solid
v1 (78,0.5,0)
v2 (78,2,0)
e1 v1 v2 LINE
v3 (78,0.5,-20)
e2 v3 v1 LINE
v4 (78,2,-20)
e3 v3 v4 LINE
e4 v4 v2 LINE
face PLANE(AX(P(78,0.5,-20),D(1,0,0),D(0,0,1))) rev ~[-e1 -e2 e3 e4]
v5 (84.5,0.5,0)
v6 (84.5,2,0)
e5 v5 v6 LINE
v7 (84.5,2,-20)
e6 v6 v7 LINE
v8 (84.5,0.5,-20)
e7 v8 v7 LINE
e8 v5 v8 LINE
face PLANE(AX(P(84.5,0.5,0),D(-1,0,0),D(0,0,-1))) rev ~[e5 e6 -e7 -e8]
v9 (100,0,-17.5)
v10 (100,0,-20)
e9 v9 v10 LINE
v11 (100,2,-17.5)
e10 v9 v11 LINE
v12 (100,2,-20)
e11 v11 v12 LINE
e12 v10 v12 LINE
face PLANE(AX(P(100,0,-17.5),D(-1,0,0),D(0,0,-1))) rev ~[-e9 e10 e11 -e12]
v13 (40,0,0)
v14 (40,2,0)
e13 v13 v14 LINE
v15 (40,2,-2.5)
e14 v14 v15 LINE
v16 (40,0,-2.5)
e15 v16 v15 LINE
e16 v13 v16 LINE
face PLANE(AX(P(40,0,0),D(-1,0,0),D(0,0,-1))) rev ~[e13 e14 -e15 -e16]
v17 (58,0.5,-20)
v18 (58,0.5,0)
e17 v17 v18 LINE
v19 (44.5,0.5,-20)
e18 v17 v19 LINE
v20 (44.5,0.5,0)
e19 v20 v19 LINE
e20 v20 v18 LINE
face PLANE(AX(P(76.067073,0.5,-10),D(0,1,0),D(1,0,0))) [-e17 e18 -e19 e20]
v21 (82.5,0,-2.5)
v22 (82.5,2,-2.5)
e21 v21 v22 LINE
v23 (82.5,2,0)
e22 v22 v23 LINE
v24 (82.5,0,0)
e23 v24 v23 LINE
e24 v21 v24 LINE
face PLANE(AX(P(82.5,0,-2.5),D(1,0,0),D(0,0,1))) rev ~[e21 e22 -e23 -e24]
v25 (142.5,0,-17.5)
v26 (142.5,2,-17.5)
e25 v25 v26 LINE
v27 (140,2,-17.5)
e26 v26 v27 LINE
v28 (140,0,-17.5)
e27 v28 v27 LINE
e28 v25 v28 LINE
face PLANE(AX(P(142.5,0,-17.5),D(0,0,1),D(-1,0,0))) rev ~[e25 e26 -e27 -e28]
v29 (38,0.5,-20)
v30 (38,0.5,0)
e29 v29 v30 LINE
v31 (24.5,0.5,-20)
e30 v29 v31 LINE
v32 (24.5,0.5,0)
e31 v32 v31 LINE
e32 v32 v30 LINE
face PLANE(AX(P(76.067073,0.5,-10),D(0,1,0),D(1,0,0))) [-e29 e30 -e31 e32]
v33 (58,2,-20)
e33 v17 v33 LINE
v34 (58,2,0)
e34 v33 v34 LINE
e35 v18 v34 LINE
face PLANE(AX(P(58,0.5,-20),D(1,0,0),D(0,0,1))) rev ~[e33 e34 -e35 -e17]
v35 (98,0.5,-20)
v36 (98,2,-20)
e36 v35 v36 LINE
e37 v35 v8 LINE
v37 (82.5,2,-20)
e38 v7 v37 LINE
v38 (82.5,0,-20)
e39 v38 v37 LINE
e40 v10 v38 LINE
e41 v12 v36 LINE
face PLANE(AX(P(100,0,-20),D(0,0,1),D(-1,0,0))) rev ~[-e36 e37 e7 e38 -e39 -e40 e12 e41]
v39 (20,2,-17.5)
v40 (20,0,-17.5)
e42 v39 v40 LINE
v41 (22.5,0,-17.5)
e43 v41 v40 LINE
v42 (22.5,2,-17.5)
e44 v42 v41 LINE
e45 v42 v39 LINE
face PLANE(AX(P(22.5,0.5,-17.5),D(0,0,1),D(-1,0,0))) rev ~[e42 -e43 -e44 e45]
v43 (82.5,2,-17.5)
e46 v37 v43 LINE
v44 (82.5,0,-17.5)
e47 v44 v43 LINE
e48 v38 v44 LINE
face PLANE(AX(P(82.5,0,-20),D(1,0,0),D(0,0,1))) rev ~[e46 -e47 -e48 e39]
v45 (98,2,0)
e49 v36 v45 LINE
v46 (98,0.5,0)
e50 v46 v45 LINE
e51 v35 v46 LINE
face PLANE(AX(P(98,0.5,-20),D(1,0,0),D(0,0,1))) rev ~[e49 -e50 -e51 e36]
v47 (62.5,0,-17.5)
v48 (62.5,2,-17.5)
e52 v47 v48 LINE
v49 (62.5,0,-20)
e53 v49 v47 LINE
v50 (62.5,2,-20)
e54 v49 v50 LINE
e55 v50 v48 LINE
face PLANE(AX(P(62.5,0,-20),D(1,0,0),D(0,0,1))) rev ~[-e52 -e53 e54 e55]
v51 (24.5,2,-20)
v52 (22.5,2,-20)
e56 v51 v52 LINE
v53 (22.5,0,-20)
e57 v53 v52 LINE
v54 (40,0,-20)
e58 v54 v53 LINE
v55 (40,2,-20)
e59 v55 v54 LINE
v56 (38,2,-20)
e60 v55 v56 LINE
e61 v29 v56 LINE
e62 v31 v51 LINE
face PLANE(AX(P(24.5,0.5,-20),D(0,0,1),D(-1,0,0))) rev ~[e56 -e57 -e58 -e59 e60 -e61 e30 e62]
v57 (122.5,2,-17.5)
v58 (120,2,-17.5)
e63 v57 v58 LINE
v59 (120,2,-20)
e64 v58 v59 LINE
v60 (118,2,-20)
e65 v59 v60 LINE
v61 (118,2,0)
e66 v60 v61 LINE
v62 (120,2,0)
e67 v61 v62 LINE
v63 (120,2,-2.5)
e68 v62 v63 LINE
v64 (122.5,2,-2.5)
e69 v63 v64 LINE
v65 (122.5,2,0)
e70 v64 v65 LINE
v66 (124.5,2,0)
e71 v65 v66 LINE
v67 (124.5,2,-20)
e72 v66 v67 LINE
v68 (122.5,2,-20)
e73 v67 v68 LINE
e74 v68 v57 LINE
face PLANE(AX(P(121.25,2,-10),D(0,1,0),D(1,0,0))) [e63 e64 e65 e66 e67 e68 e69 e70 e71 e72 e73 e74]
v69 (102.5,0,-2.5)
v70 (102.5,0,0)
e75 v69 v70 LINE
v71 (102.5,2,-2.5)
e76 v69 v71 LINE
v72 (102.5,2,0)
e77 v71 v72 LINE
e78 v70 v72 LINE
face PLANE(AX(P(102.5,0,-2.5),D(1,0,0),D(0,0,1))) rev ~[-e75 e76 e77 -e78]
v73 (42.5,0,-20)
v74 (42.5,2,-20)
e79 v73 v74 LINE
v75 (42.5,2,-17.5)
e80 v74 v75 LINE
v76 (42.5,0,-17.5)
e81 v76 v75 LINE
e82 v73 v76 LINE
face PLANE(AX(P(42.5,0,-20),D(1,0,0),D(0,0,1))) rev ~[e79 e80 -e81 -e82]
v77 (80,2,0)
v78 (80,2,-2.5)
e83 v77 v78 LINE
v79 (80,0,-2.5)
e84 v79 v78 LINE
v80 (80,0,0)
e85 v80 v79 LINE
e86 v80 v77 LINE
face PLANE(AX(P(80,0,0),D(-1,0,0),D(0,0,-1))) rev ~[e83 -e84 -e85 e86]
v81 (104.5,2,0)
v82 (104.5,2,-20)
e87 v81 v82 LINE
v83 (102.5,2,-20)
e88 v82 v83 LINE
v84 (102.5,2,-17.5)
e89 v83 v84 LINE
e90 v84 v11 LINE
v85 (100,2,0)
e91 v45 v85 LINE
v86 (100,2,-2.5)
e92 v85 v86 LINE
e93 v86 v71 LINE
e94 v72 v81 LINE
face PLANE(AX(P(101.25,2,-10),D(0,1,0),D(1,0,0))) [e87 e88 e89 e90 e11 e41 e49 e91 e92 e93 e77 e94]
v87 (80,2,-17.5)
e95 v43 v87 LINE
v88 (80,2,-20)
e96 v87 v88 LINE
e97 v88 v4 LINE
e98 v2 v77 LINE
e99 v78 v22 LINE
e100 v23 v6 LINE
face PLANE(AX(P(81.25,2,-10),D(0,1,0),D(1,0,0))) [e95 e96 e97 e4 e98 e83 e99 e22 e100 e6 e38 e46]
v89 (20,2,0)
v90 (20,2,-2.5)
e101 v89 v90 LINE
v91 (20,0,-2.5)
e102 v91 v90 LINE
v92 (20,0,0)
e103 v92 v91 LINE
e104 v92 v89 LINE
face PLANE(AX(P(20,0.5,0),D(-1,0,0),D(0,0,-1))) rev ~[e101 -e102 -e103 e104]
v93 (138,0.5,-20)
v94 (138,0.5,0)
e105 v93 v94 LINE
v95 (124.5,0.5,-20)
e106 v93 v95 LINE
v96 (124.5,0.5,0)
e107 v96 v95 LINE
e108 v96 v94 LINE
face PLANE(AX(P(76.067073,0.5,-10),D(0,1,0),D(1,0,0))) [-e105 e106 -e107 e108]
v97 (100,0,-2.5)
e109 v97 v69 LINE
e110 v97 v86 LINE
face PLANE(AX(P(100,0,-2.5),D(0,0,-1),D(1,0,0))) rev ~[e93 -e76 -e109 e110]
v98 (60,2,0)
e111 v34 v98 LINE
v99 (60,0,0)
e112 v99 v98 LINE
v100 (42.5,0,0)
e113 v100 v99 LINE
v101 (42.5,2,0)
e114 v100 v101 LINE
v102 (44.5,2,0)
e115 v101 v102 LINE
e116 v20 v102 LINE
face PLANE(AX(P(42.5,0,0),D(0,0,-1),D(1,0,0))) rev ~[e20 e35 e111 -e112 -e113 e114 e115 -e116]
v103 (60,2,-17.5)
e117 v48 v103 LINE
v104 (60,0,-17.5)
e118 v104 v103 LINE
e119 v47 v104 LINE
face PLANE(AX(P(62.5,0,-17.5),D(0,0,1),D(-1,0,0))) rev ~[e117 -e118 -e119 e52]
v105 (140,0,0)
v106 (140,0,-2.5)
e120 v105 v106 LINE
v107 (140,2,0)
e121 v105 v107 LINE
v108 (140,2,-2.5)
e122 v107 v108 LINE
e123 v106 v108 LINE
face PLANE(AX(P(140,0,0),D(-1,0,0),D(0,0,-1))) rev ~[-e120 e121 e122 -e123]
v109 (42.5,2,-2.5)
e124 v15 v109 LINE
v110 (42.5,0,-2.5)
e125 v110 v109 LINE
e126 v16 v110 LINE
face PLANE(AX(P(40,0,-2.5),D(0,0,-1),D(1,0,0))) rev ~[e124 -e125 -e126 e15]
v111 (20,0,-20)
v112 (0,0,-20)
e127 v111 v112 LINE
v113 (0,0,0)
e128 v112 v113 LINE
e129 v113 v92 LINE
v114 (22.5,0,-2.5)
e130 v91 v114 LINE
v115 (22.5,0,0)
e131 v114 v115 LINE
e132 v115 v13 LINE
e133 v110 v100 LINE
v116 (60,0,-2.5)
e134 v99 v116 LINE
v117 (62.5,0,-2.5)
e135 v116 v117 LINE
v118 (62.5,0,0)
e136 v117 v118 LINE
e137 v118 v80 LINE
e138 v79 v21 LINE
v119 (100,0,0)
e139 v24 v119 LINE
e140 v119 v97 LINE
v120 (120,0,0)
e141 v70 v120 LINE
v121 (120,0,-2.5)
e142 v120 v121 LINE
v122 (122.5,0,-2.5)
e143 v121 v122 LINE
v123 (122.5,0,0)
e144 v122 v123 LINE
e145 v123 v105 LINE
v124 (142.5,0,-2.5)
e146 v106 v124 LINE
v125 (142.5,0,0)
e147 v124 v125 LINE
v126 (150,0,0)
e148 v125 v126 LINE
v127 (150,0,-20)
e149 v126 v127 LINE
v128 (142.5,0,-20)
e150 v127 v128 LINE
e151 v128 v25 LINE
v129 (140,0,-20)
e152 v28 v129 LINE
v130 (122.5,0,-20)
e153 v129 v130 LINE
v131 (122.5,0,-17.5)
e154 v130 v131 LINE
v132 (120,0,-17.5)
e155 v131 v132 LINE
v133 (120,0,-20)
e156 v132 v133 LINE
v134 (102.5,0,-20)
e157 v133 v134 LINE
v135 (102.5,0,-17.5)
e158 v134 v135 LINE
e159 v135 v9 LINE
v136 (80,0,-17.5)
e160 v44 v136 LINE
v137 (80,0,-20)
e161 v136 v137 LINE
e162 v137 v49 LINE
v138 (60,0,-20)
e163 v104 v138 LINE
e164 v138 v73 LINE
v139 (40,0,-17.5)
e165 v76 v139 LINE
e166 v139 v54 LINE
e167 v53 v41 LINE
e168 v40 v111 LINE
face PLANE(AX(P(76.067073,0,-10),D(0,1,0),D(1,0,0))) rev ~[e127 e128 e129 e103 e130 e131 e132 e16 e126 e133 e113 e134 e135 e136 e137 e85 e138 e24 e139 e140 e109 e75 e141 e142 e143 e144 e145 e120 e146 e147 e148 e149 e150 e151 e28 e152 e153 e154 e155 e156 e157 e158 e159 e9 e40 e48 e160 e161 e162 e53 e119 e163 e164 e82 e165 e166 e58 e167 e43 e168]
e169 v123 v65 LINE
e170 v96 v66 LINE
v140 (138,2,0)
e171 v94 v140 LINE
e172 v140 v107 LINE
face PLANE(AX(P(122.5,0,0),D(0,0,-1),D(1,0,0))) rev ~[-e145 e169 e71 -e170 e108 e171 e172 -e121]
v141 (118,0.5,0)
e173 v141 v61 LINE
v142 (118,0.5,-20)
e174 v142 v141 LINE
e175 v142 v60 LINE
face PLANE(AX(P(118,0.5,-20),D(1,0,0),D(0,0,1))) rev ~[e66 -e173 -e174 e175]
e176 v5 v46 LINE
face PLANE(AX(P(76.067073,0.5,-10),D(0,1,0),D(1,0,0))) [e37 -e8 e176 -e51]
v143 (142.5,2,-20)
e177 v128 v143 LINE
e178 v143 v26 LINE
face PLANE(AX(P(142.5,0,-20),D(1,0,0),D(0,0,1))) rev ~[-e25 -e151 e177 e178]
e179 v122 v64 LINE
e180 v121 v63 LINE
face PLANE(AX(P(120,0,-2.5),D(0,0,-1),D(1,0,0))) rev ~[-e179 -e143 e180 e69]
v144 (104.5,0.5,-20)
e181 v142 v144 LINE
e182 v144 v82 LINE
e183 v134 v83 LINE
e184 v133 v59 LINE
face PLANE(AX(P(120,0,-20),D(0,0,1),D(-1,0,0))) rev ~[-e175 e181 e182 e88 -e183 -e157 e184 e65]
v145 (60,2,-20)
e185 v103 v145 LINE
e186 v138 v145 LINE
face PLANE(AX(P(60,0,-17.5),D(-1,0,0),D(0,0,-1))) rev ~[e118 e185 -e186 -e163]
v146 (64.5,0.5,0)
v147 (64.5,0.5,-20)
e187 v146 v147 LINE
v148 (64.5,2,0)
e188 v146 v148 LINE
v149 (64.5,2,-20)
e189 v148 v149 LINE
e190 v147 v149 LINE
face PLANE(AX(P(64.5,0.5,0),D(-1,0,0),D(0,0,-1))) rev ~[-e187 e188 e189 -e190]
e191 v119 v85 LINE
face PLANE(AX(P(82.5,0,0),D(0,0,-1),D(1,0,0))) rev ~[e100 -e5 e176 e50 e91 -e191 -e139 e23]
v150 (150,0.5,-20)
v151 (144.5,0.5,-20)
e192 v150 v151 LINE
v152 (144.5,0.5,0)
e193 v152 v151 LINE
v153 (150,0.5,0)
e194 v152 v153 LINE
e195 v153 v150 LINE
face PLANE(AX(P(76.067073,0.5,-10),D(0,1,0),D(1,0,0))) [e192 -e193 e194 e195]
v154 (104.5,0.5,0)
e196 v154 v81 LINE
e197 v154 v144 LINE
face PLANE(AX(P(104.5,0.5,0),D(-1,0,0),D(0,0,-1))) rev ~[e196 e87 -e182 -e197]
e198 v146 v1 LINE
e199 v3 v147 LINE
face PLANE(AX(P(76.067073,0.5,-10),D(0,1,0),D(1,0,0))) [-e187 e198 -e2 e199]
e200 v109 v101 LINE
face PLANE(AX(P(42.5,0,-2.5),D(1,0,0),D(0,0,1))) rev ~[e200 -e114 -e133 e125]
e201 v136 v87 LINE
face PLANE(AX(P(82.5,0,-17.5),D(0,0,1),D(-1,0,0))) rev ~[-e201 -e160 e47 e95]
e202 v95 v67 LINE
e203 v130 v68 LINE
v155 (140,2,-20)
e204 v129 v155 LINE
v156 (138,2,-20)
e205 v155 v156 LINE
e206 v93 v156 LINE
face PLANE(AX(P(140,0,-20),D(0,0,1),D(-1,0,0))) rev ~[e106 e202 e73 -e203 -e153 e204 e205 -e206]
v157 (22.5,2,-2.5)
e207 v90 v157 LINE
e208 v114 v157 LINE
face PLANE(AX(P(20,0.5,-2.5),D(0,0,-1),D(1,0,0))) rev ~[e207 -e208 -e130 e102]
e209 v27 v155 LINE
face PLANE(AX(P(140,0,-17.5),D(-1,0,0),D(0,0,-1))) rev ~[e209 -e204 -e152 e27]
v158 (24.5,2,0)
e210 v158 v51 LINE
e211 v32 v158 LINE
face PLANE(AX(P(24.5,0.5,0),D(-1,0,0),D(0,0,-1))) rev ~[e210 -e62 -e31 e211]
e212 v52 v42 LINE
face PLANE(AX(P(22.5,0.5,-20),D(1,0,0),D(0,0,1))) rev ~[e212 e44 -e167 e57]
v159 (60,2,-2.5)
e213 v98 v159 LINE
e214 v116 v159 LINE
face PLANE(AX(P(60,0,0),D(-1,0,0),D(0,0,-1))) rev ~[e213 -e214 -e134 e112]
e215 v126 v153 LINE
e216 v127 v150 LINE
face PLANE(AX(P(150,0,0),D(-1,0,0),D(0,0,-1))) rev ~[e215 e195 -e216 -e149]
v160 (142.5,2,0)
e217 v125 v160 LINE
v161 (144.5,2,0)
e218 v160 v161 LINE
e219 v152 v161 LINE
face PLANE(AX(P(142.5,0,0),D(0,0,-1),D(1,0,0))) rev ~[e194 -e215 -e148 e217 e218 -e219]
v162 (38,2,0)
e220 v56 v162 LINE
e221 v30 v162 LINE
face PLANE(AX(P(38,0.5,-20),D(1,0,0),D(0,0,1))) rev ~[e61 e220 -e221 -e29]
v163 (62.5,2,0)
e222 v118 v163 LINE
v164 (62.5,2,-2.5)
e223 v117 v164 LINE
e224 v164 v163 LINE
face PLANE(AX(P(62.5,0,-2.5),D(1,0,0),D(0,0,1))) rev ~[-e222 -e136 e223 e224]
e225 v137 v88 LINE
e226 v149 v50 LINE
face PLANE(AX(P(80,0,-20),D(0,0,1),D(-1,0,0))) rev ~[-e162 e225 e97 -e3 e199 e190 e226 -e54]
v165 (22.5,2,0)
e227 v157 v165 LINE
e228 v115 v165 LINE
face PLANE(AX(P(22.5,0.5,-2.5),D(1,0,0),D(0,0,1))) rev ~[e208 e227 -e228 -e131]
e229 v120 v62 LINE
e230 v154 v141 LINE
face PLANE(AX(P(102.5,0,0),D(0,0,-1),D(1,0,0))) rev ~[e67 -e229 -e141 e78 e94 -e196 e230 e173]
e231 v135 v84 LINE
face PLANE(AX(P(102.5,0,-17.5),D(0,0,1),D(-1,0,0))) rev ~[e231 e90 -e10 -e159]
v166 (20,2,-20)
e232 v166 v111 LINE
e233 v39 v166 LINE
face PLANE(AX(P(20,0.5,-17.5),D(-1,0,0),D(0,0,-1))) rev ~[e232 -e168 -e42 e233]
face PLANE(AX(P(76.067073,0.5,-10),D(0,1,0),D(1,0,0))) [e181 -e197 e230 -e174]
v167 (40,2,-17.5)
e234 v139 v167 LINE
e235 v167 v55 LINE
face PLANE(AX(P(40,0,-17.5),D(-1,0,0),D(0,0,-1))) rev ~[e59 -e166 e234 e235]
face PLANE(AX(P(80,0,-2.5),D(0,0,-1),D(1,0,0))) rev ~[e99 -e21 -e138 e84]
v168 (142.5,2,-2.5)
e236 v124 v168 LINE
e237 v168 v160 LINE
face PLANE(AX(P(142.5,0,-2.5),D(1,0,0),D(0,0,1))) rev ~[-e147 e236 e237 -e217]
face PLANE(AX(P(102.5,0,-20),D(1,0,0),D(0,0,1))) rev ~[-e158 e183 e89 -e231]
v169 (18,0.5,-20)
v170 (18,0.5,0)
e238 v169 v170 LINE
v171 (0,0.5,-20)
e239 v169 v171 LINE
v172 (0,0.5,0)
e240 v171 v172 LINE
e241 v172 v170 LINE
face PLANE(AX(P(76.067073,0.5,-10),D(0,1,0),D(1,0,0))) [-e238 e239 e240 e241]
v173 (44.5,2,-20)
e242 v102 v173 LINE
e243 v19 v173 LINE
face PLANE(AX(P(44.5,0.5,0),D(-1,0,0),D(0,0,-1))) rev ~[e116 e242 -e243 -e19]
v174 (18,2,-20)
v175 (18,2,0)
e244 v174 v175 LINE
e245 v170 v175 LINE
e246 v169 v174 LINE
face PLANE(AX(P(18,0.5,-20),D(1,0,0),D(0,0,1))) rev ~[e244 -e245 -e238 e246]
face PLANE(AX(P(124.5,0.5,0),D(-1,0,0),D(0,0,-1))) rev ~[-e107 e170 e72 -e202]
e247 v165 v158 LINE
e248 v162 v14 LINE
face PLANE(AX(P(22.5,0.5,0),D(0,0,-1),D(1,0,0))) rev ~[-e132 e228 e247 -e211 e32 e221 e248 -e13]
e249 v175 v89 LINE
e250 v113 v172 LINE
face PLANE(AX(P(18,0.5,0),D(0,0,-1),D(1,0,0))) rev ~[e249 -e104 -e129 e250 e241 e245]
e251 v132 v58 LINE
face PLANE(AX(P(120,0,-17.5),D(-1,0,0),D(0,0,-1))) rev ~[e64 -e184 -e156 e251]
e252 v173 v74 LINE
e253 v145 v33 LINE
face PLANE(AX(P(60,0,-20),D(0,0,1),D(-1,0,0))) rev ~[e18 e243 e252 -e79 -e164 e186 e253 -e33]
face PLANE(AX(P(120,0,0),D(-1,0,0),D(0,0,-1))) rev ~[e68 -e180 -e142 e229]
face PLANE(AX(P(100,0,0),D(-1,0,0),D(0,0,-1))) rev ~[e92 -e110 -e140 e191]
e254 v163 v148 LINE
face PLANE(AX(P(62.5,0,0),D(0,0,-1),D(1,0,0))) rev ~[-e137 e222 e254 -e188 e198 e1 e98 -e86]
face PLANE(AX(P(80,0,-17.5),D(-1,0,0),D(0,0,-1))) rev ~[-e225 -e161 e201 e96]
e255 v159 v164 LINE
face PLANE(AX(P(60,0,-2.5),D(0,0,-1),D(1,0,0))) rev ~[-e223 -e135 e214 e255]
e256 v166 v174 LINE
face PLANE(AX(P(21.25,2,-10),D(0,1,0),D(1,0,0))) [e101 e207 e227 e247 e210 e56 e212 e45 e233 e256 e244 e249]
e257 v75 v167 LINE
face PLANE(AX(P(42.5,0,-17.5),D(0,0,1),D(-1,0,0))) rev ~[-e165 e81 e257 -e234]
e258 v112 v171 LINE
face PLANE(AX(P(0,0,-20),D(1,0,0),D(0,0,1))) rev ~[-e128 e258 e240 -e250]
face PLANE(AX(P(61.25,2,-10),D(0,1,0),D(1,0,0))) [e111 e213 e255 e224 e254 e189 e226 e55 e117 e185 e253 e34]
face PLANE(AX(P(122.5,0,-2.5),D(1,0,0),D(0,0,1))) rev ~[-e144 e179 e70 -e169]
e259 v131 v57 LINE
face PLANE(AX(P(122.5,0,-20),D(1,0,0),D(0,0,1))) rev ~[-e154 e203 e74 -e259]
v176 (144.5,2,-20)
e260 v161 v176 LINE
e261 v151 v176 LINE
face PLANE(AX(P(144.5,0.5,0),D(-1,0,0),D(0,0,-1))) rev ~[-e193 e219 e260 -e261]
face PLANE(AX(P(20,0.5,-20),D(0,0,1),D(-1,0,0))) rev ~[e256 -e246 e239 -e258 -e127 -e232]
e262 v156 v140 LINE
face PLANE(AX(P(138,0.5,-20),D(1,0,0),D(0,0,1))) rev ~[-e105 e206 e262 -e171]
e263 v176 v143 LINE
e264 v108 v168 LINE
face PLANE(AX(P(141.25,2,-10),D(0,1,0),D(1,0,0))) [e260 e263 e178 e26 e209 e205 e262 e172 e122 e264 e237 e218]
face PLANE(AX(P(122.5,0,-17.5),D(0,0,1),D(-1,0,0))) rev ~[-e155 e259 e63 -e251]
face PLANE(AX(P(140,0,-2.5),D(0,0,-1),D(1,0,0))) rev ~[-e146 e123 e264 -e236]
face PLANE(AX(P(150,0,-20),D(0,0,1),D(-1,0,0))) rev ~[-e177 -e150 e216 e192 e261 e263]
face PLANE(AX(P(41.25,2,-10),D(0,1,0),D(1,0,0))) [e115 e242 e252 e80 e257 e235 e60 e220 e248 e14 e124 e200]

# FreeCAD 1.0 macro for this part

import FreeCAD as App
import Part
import Sketcher
from FreeCAD import Vector

doc = App.newDocument("Part")
body = doc.addObject("PartDesign::Body", "Body")

# Sketch on XZ plane
sketch1 = doc.addObject("Sketcher::SketchObject", "Sketch")
body.addObject(sketch1)
sketch1.AttachmentSupport = (doc.XZ_Plane, [""])
sketch1.MapMode = "FlatFace"
sketch1.addGeometry([
    Part.LineSegment(Vector(40, 0, 0), Vector(40, -2.5, 0)),  # 0
    Part.LineSegment(Vector(40, -2.5, 0), Vector(42.5, -2.5, 0)),  # 1
    Part.LineSegment(Vector(42.5, -2.5, 0), Vector(42.5, 0, 0)),  # 2
    Part.LineSegment(Vector(42.5, 0, 0), Vector(60, 0, 0)),  # 3
    Part.LineSegment(Vector(60, 0, 0), Vector(60, -2.5, 0)),  # 4
    Part.LineSegment(Vector(60, -2.5, 0), Vector(62.5, -2.5, 0)),  # 5
    Part.LineSegment(Vector(62.5, -2.5, 0), Vector(62.5, 0, 0)),  # 6
    Part.LineSegment(Vector(62.5, 0, 0), Vector(80, 0, 0)),  # 7
    Part.LineSegment(Vector(80, 0, 0), Vector(80, -2.5, 0)),  # 8
    Part.LineSegment(Vector(80, -2.5, 0), Vector(82.5, -2.5, 0)),  # 9
    Part.LineSegment(Vector(82.5, -2.5, 0), Vector(82.5, 0, 0)),  # 10
    Part.LineSegment(Vector(82.5, 0, 0), Vector(100, 0, 0)),  # 11
    Part.LineSegment(Vector(100, 0, 0), Vector(100, -2.5, 0)),  # 12
    Part.LineSegment(Vector(100, -2.5, 0), Vector(102.5, -2.5, 0)),  # 13
    Part.LineSegment(Vector(102.5, -2.5, 0), Vector(102.5, 0, 0)),  # 14
    Part.LineSegment(Vector(102.5, 0, 0), Vector(120, 0, 0)),  # 15
    Part.LineSegment(Vector(120, 0, 0), Vector(120, -2.5, 0)),  # 16
    Part.LineSegment(Vector(120, -2.5, 0), Vector(122.5, -2.5, 0)),  # 17
    Part.LineSegment(Vector(122.5, -2.5, 0), Vector(122.5, 0, 0)),  # 18
    Part.LineSegment(Vector(122.5, 0, 0), Vector(140, 0, 0)),  # 19
    Part.LineSegment(Vector(140, 0, 0), Vector(140, -2.5, 0)),  # 20
    Part.LineSegment(Vector(140, -2.5, 0), Vector(142.5, -2.5, 0)),  # 21
    Part.LineSegment(Vector(142.5, -2.5, 0), Vector(142.5, 0, 0)),  # 22
    Part.LineSegment(Vector(142.5, 0, 0), Vector(150, 0, 0)),  # 23
    Part.LineSegment(Vector(150, 0, 0), Vector(150, -20, 0)),  # 24
    Part.LineSegment(Vector(150, -20, 0), Vector(142.5, -20, 0)),  # 25
    Part.LineSegment(Vector(142.5, -20, 0), Vector(142.5, -17.5, 0)),  # 26
    Part.LineSegment(Vector(142.5, -17.5, 0), Vector(140, -17.5, 0)),  # 27
    Part.LineSegment(Vector(140, -17.5, 0), Vector(140, -20, 0)),  # 28
    Part.LineSegment(Vector(140, -20, 0), Vector(122.5, -20, 0)),  # 29
    Part.LineSegment(Vector(122.5, -20, 0), Vector(122.5, -17.5, 0)),  # 30
    Part.LineSegment(Vector(122.5, -17.5, 0), Vector(120, -17.5, 0)),  # 31
    Part.LineSegment(Vector(120, -17.5, 0), Vector(120, -20, 0)),  # 32
    Part.LineSegment(Vector(120, -20, 0), Vector(102.5, -20, 0)),  # 33
    Part.LineSegment(Vector(102.5, -20, 0), Vector(102.5, -17.5, 0)),  # 34
    Part.LineSegment(Vector(102.5, -17.5, 0), Vector(100, -17.5, 0)),  # 35
    Part.LineSegment(Vector(100, -17.5, 0), Vector(100, -20, 0)),  # 36
    Part.LineSegment(Vector(100, -20, 0), Vector(82.5, -20, 0)),  # 37
    Part.LineSegment(Vector(82.5, -20, 0), Vector(82.5, -17.5, 0)),  # 38
    Part.LineSegment(Vector(82.5, -17.5, 0), Vector(80, -17.5, 0)),  # 39
    Part.LineSegment(Vector(80, -17.5, 0), Vector(80, -20, 0)),  # 40
    Part.LineSegment(Vector(80, -20, 0), Vector(62.5, -20, 0)),  # 41
    Part.LineSegment(Vector(62.5, -20, 0), Vector(62.5, -17.5, 0)),  # 42
    Part.LineSegment(Vector(62.5, -17.5, 0), Vector(60, -17.5, 0)),  # 43
    Part.LineSegment(Vector(60, -17.5, 0), Vector(60, -20, 0)),  # 44
    Part.LineSegment(Vector(60, -20, 0), Vector(42.5, -20, 0)),  # 45
    Part.LineSegment(Vector(42.5, -20, 0), Vector(42.5, -17.5, 0)),  # 46
    Part.LineSegment(Vector(42.5, -17.5, 0), Vector(40, -17.5, 0)),  # 47
    Part.LineSegment(Vector(40, -17.5, 0), Vector(40, -20, 0)),  # 48
    Part.LineSegment(Vector(40, -20, 0), Vector(22.5, -20, 0)),  # 49
    Part.LineSegment(Vector(22.5, -20, 0), Vector(22.5, -17.5, 0)),  # 50
    Part.LineSegment(Vector(22.5, -17.5, 0), Vector(20, -17.5, 0)),  # 51
    Part.LineSegment(Vector(20, -17.5, 0), Vector(20, -20, 0)),  # 52
    Part.LineSegment(Vector(20, -20, 0), Vector(0, -20, 0)),  # 53
    Part.LineSegment(Vector(0, -20, 0), Vector(0, 0, 0)),  # 54
    Part.LineSegment(Vector(0, 0, 0), Vector(20, 0, 0)),  # 55
    Part.LineSegment(Vector(20, 0, 0), Vector(20, -2.5, 0)),  # 56
    Part.LineSegment(Vector(20, -2.5, 0), Vector(22.5, -2.5, 0)),  # 57
    Part.LineSegment(Vector(22.5, -2.5, 0), Vector(22.5, 0, 0)),  # 58
    Part.LineSegment(Vector(22.5, 0, 0), Vector(40, 0, 0)),  # 59
], False)
sketch1.addConstraint([
    Sketcher.Constraint("Coincident", 0, 2, 1, 1),
    Sketcher.Constraint("Coincident", 1, 2, 2, 1),
    Sketcher.Constraint("Coincident", 2, 2, 3, 1),
    Sketcher.Constraint("Coincident", 3, 2, 4, 1),
    Sketcher.Constraint("Coincident", 4, 2, 5, 1),
    Sketcher.Constraint("Coincident", 5, 2, 6, 1),
    Sketcher.Constraint("Coincident", 6, 2, 7, 1),
    Sketcher.Constraint("Coincident", 7, 2, 8, 1),
    Sketcher.Constraint("Coincident", 8, 2, 9, 1),
    Sketcher.Constraint("Coincident", 9, 2, 10, 1),
    Sketcher.Constraint("Coincident", 10, 2, 11, 1),
    Sketcher.Constraint("Coincident", 11, 2, 12, 1),
    Sketcher.Constraint("Coincident", 12, 2, 13, 1),
    Sketcher.Constraint("Coincident", 13, 2, 14, 1),
    Sketcher.Constraint("Coincident", 14, 2, 15, 1),
    Sketcher.Constraint("Coincident", 15, 2, 16, 1),
    Sketcher.Constraint("Coincident", 16, 2, 17, 1),
    Sketcher.Constraint("Coincident", 17, 2, 18, 1),
    Sketcher.Constraint("Coincident", 18, 2, 19, 1),
    Sketcher.Constraint("Coincident", 19, 2, 20, 1),
    Sketcher.Constraint("Coincident", 20, 2, 21, 1),
    Sketcher.Constraint("Coincident", 21, 2, 22, 1),
    Sketcher.Constraint("Coincident", 22, 2, 23, 1),
    Sketcher.Constraint("Coincident", 23, 2, 24, 1),
    Sketcher.Constraint("Coincident", 24, 2, 25, 1),
    Sketcher.Constraint("Coincident", 25, 2, 26, 1),
    Sketcher.Constraint("Coincident", 26, 2, 27, 1),
    Sketcher.Constraint("Coincident", 27, 2, 28, 1),
    Sketcher.Constraint("Coincident", 28, 2, 29, 1),
    Sketcher.Constraint("Coincident", 29, 2, 30, 1),
    Sketcher.Constraint("Coincident", 30, 2, 31, 1),
    Sketcher.Constraint("Coincident", 31, 2, 32, 1),
    Sketcher.Constraint("Coincident", 32, 2, 33, 1),
    Sketcher.Constraint("Coincident", 33, 2, 34, 1),
    Sketcher.Constraint("Coincident", 34, 2, 35, 1),
    Sketcher.Constraint("Coincident", 35, 2, 36, 1),
    Sketcher.Constraint("Coincident", 36, 2, 37, 1),
    Sketcher.Constraint("Coincident", 37, 2, 38, 1),
    Sketcher.Constraint("Coincident", 38, 2, 39, 1),
    Sketcher.Constraint("Coincident", 39, 2, 40, 1),
    Sketcher.Constraint("Coincident", 40, 2, 41, 1),
    Sketcher.Constraint("Coincident", 41, 2, 42, 1),
    Sketcher.Constraint("Coincident", 42, 2, 43, 1),
    Sketcher.Constraint("Coincident", 43, 2, 44, 1),
    Sketcher.Constraint("Coincident", 44, 2, 45, 1),
    Sketcher.Constraint("Coincident", 45, 2, 46, 1),
    Sketcher.Constraint("Coincident", 46, 2, 47, 1),
    Sketcher.Constraint("Coincident", 47, 2, 48, 1),
    Sketcher.Constraint("Coincident", 48, 2, 49, 1),
    Sketcher.Constraint("Coincident", 49, 2, 50, 1),
    Sketcher.Constraint("Coincident", 50, 2, 51, 1),
    Sketcher.Constraint("Coincident", 51, 2, 52, 1),
    Sketcher.Constraint("Coincident", 52, 2, 53, 1),
    Sketcher.Constraint("Coincident", 53, 2, 54, 1),
    Sketcher.Constraint("Coincident", 54, 2, 55, 1),
    Sketcher.Constraint("Coincident", 55, 2, 56, 1),
    Sketcher.Constraint("Coincident", 56, 2, 57, 1),
    Sketcher.Constraint("Coincident", 57, 2, 58, 1),
    Sketcher.Constraint("Coincident", 58, 2, 59, 1),
    Sketcher.Constraint("Coincident", 59, 2, 0, 1),
    Sketcher.Constraint("Vertical", 0),
    Sketcher.Constraint("Horizontal", 1),
    Sketcher.Constraint("Vertical", 2),
    Sketcher.Constraint("Horizontal", 3),
    Sketcher.Constraint("Vertical", 4),
    Sketcher.Constraint("Horizontal", 5),
    Sketcher.Constraint("Vertical", 6),
    Sketcher.Constraint("Horizontal", 7),
    Sketcher.Constraint("Vertical", 8),
    Sketcher.Constraint("Horizontal", 9),
    Sketcher.Constraint("Vertical", 10),
    Sketcher.Constraint("Horizontal", 11),
    Sketcher.Constraint("Vertical", 12),
    Sketcher.Constraint("Horizontal", 13),
    Sketcher.Constraint("Vertical", 14),
    Sketcher.Constraint("Horizontal", 15),
    Sketcher.Constraint("Vertical", 16),
    Sketcher.Constraint("Horizontal", 17),
    Sketcher.Constraint("Vertical", 18),
    Sketcher.Constraint("Horizontal", 19),
    Sketcher.Constraint("Vertical", 20),
    Sketcher.Constraint("Horizontal", 21),
    Sketcher.Constraint("Vertical", 22),
    Sketcher.Constraint("Horizontal", 23),
    Sketcher.Constraint("Vertical", 24),
    Sketcher.Constraint("Horizontal", 25),
    Sketcher.Constraint("Vertical", 26),
    Sketcher.Constraint("Horizontal", 27),
    Sketcher.Constraint("Vertical", 28),
    Sketcher.Constraint("Horizontal", 29),
    Sketcher.Constraint("Vertical", 30),
    Sketcher.Constraint("Horizontal", 31),
    Sketcher.Constraint("Vertical", 32),
    Sketcher.Constraint("Horizontal", 33),
    Sketcher.Constraint("Vertical", 34),
    Sketcher.Constraint("Horizontal", 35),
    Sketcher.Constraint("Vertical", 36),
    Sketcher.Constraint("Horizontal", 37),
    Sketcher.Constraint("Vertical", 38),
    Sketcher.Constraint("Horizontal", 39),
    Sketcher.Constraint("Vertical", 40),
    Sketcher.Constraint("Horizontal", 41),
    Sketcher.Constraint("Vertical", 42),
    Sketcher.Constraint("Horizontal", 43),
    Sketcher.Constraint("Vertical", 44),
    Sketcher.Constraint("Horizontal", 45),
    Sketcher.Constraint("Vertical", 46),
    Sketcher.Constraint("Horizontal", 47),
    Sketcher.Constraint("Vertical", 48),
    Sketcher.Constraint("Horizontal", 49),
    Sketcher.Constraint("Vertical", 50),
    Sketcher.Constraint("Horizontal", 51),
    Sketcher.Constraint("Vertical", 52),
    Sketcher.Constraint("Horizontal", 53),
    Sketcher.Constraint("Vertical", 54),
    Sketcher.Constraint("Horizontal", 55),
    Sketcher.Constraint("Vertical", 56),
    Sketcher.Constraint("Horizontal", 57),
    Sketcher.Constraint("Vertical", 58),
    Sketcher.Constraint("Horizontal", 59),
    Sketcher.Constraint("Coincident", 54, 2, -1, 1),
    Sketcher.Constraint("PointOnObject", 2, 2, -1),
    Sketcher.Constraint("PointOnObject", 6, 2, -1),
    Sketcher.Constraint("PointOnObject", 10, 2, -1),
    Sketcher.Constraint("PointOnObject", 14, 2, -1),
    Sketcher.Constraint("PointOnObject", 18, 2, -1),
    Sketcher.Constraint("PointOnObject", 22, 2, -1),
    Sketcher.Constraint("PointOnObject", 58, 2, -1),
    Sketcher.Constraint("Horizontal", 1, 2, 4, 2),
    Sketcher.Constraint("Horizontal", 5, 2, 8, 2),
    Sketcher.Constraint("Horizontal", 9, 2, 12, 2),
    Sketcher.Constraint("Horizontal", 13, 2, 16, 2),
    Sketcher.Constraint("Horizontal", 17, 2, 20, 2),
    Sketcher.Constraint("Horizontal", 25, 2, 28, 2),
    Sketcher.Constraint("Horizontal", 27, 2, 30, 2),
    Sketcher.Constraint("Horizontal", 29, 2, 32, 2),
    Sketcher.Constraint("Horizontal", 31, 2, 34, 2),
    Sketcher.Constraint("Horizontal", 33, 2, 36, 2),
    Sketcher.Constraint("Horizontal", 35, 2, 38, 2),
    Sketcher.Constraint("Horizontal", 37, 2, 40, 2),
    Sketcher.Constraint("Horizontal", 39, 2, 42, 2),
    Sketcher.Constraint("Horizontal", 41, 2, 44, 2),
    Sketcher.Constraint("Horizontal", 43, 2, 46, 2),
    Sketcher.Constraint("Horizontal", 45, 2, 48, 2),
    Sketcher.Constraint("Horizontal", 47, 2, 50, 2),
    Sketcher.Constraint("Horizontal", 49, 2, 52, 2),
    Sketcher.Constraint("Horizontal", 21, 2, 56, 2),
    Sketcher.Constraint("Vertical", 22, 2, 25, 2),
    Sketcher.Constraint("Vertical", 20, 2, 27, 2),
    Sketcher.Constraint("Vertical", 18, 2, 29, 2),
    Sketcher.Constraint("Vertical", 16, 2, 31, 2),
    Sketcher.Constraint("Vertical", 14, 2, 33, 2),
    Sketcher.Constraint("Vertical", 12, 2, 35, 2),
    Sketcher.Constraint("Vertical", 10, 2, 37, 2),
    Sketcher.Constraint("Vertical", 8, 2, 39, 2),
    Sketcher.Constraint("Vertical", 6, 2, 41, 2),
    Sketcher.Constraint("Vertical", 4, 2, 43, 2),
    Sketcher.Constraint("Vertical", 2, 2, 45, 2),
    Sketcher.Constraint("Vertical", 0, 2, 47, 2),
    Sketcher.Constraint("Vertical", 52, 2, 55, 2),
    Sketcher.Constraint("Vertical", 50, 2, 57, 2),
    Sketcher.Constraint("Equal", 1, 5),
    Sketcher.Constraint("Equal", 3, 7),
    Sketcher.Constraint("Equal", 5, 9),
    Sketcher.Constraint("Equal", 7, 11),
    Sketcher.Constraint("Equal", 9, 13),
    Sketcher.Constraint("Equal", 11, 15),
    Sketcher.Constraint("Equal", 13, 17),
    Sketcher.Constraint("Equal", 15, 19),
    Sketcher.Constraint("Equal", 17, 21),
    Sketcher.Constraint("Equal", 45, 49),
    Sketcher.Constraint("Equal", 47, 51),
    Sketcher.Constraint("Equal", 57, 0),
    Sketcher.Constraint("Equal", 55, 24),
    Sketcher.Constraint("Equal", 22, 26),
    Sketcher.Constraint("DistanceX", 53, 2, 53, 1, 20.0),
    Sketcher.Constraint("DistanceX", 1, 1, 1, 2, 2.5),
    Sketcher.Constraint("DistanceX", 3, 1, 3, 2, 17.5),
    Sketcher.Constraint("DistanceX", 23, 1, 23, 2, 7.5),
])
pad1 = doc.addObject("PartDesign::Pad", "Pad")
body.addObject(pad1)
pad1.Profile = sketch1
pad1.Length = 0.5
pad1.Reversed = True

# Sketch on XZ plane
sketch2 = doc.addObject("Sketcher::SketchObject", "Sketch001")
body.addObject(sketch2)
sketch2.AttachmentSupport = (doc.XZ_Plane, [""])
sketch2.MapMode = "FlatFace"
sketch2.AttachmentOffset = App.Placement(Vector(0, 0, -0.5), App.Rotation())
sketch2.addGeometry([
    Part.LineSegment(Vector(20, -20, 0), Vector(18, -20, 0)),  # 0
    Part.LineSegment(Vector(18, -20, 0), Vector(18, 0, 0)),  # 1
    Part.LineSegment(Vector(18, 0, 0), Vector(20, 0, 0)),  # 2
    Part.LineSegment(Vector(20, 0, 0), Vector(20, -2.5, 0)),  # 3
    Part.LineSegment(Vector(20, -2.5, 0), Vector(22.5, -2.5, 0)),  # 4
    Part.LineSegment(Vector(22.5, -2.5, 0), Vector(22.5, 0, 0)),  # 5
    Part.LineSegment(Vector(22.5, 0, 0), Vector(24.5, 0, 0)),  # 6
    Part.LineSegment(Vector(24.5, 0, 0), Vector(24.5, -20, 0)),  # 7
    Part.LineSegment(Vector(24.5, -20, 0), Vector(22.5, -20, 0)),  # 8
    Part.LineSegment(Vector(22.5, -20, 0), Vector(22.5, -17.5, 0)),  # 9
    Part.LineSegment(Vector(22.5, -17.5, 0), Vector(20, -17.5, 0)),  # 10
    Part.LineSegment(Vector(20, -17.5, 0), Vector(20, -20, 0)),  # 11
    Part.LineSegment(Vector(40, -17.5, 0), Vector(40, -20, 0)),  # 12
    Part.LineSegment(Vector(40, -20, 0), Vector(38, -20, 0)),  # 13
    Part.LineSegment(Vector(38, -20, 0), Vector(38, 0, 0)),  # 14
    Part.LineSegment(Vector(38, 0, 0), Vector(40, 0, 0)),  # 15
    Part.LineSegment(Vector(40, 0, 0), Vector(40, -2.5, 0)),  # 16
    Part.LineSegment(Vector(40, -2.5, 0), Vector(42.5, -2.5, 0)),  # 17
    Part.LineSegment(Vector(42.5, -2.5, 0), Vector(42.5, 0, 0)),  # 18
    Part.LineSegment(Vector(42.5, 0, 0), Vector(44.5, 0, 0)),  # 19
    Part.LineSegment(Vector(44.5, 0, 0), Vector(44.5, -20, 0)),  # 20
    Part.LineSegment(Vector(44.5, -20, 0), Vector(42.5, -20, 0)),  # 21
    Part.LineSegment(Vector(42.5, -20, 0), Vector(42.5, -17.5, 0)),  # 22
    Part.LineSegment(Vector(42.5, -17.5, 0), Vector(40, -17.5, 0)),  # 23
    Part.LineSegment(Vector(60, -17.5, 0), Vector(60, -20, 0)),  # 24
    Part.LineSegment(Vector(60, -20, 0), Vector(58, -20, 0)),  # 25
    Part.LineSegment(Vector(58, -20, 0), Vector(58, 0, 0)),  # 26
    Part.LineSegment(Vector(58, 0, 0), Vector(60, 0, 0)),  # 27
    Part.LineSegment(Vector(60, 0, 0), Vector(60, -2.5, 0)),  # 28
    Part.LineSegment(Vector(60, -2.5, 0), Vector(62.5, -2.5, 0)),  # 29
    Part.LineSegment(Vector(62.5, -2.5, 0), Vector(62.5, 0, 0)),  # 30
    Part.LineSegment(Vector(62.5, 0, 0), Vector(64.5, 0, 0)),  # 31
    Part.LineSegment(Vector(64.5, 0, 0), Vector(64.5, -20, 0)),  # 32
    Part.LineSegment(Vector(64.5, -20, 0), Vector(62.5, -20, 0)),  # 33
    Part.LineSegment(Vector(62.5, -20, 0), Vector(62.5, -17.5, 0)),  # 34
    Part.LineSegment(Vector(62.5, -17.5, 0), Vector(60, -17.5, 0)),  # 35
    Part.LineSegment(Vector(80, -17.5, 0), Vector(80, -20, 0)),  # 36
    Part.LineSegment(Vector(80, -20, 0), Vector(78, -20, 0)),  # 37
    Part.LineSegment(Vector(78, -20, 0), Vector(78, 0, 0)),  # 38
    Part.LineSegment(Vector(78, 0, 0), Vector(80, 0, 0)),  # 39
    Part.LineSegment(Vector(80, 0, 0), Vector(80, -2.5, 0)),  # 40
    Part.LineSegment(Vector(80, -2.5, 0), Vector(82.5, -2.5, 0)),  # 41
    Part.LineSegment(Vector(82.5, -2.5, 0), Vector(82.5, 0, 0)),  # 42
    Part.LineSegment(Vector(82.5, 0, 0), Vector(84.5, 0, 0)),  # 43
    Part.LineSegment(Vector(84.5, 0, 0), Vector(84.5, -20, 0)),  # 44
    Part.LineSegment(Vector(84.5, -20, 0), Vector(82.5, -20, 0)),  # 45
    Part.LineSegment(Vector(82.5, -20, 0), Vector(82.5, -17.5, 0)),  # 46
    Part.LineSegment(Vector(82.5, -17.5, 0), Vector(80, -17.5, 0)),  # 47
    Part.LineSegment(Vector(100, -17.5, 0), Vector(100, -20, 0)),  # 48
    Part.LineSegment(Vector(100, -20, 0), Vector(98, -20, 0)),  # 49
    Part.LineSegment(Vector(98, -20, 0), Vector(98, 0, 0)),  # 50
    Part.LineSegment(Vector(98, 0, 0), Vector(100, 0, 0)),  # 51
    Part.LineSegment(Vector(100, 0, 0), Vector(100, -2.5, 0)),  # 52
    Part.LineSegment(Vector(100, -2.5, 0), Vector(102.5, -2.5, 0)),  # 53
    Part.LineSegment(Vector(102.5, -2.5, 0), Vector(102.5, 0, 0)),  # 54
    Part.LineSegment(Vector(102.5, 0, 0), Vector(104.5, 0, 0)),  # 55
    Part.LineSegment(Vector(104.5, 0, 0), Vector(104.5, -20, 0)),  # 56
    Part.LineSegment(Vector(104.5, -20, 0), Vector(102.5, -20, 0)),  # 57
    Part.LineSegment(Vector(102.5, -20, 0), Vector(102.5, -17.5, 0)),  # 58
    Part.LineSegment(Vector(102.5, -17.5, 0), Vector(100, -17.5, 0)),  # 59
    Part.LineSegment(Vector(120, -17.5, 0), Vector(120, -20, 0)),  # 60
    Part.LineSegment(Vector(120, -20, 0), Vector(118, -20, 0)),  # 61
    Part.LineSegment(Vector(118, -20, 0), Vector(118, 0, 0)),  # 62
    Part.LineSegment(Vector(118, 0, 0), Vector(120, 0, 0)),  # 63
    Part.LineSegment(Vector(120, 0, 0), Vector(120, -2.5, 0)),  # 64
    Part.LineSegment(Vector(120, -2.5, 0), Vector(122.5, -2.5, 0)),  # 65
    Part.LineSegment(Vector(122.5, -2.5, 0), Vector(122.5, 0, 0)),  # 66
    Part.LineSegment(Vector(122.5, 0, 0), Vector(124.5, 0, 0)),  # 67
    Part.LineSegment(Vector(124.5, 0, 0), Vector(124.5, -20, 0)),  # 68
    Part.LineSegment(Vector(124.5, -20, 0), Vector(122.5, -20, 0)),  # 69
    Part.LineSegment(Vector(122.5, -20, 0), Vector(122.5, -17.5, 0)),  # 70
    Part.LineSegment(Vector(122.5, -17.5, 0), Vector(120, -17.5, 0)),  # 71
    Part.LineSegment(Vector(140, -17.5, 0), Vector(140, -20, 0)),  # 72
    Part.LineSegment(Vector(140, -20, 0), Vector(138, -20, 0)),  # 73
    Part.LineSegment(Vector(138, -20, 0), Vector(138, 0, 0)),  # 74
    Part.LineSegment(Vector(138, 0, 0), Vector(140, 0, 0)),  # 75
    Part.LineSegment(Vector(140, 0, 0), Vector(140, -2.5, 0)),  # 76
    Part.LineSegment(Vector(140, -2.5, 0), Vector(142.5, -2.5, 0)),  # 77
    Part.LineSegment(Vector(142.5, -2.5, 0), Vector(142.5, 0, 0)),  # 78
    Part.LineSegment(Vector(142.5, 0, 0), Vector(144.5, 0, 0)),  # 79
    Part.LineSegment(Vector(144.5, 0, 0), Vector(144.5, -20, 0)),  # 80
    Part.LineSegment(Vector(144.5, -20, 0), Vector(142.5, -20, 0)),  # 81
    Part.LineSegment(Vector(142.5, -20, 0), Vector(142.5, -17.5, 0)),  # 82
    Part.LineSegment(Vector(142.5, -17.5, 0), Vector(140, -17.5, 0)),  # 83
], False)
sketch2.addConstraint([
    Sketcher.Constraint("Coincident", 0, 2, 1, 1),
    Sketcher.Constraint("Coincident", 1, 2, 2, 1),
    Sketcher.Constraint("Coincident", 2, 2, 3, 1),
    Sketcher.Constraint("Coincident", 3, 2, 4, 1),
    Sketcher.Constraint("Coincident", 4, 2, 5, 1),
    Sketcher.Constraint("Coincident", 5, 2, 6, 1),
    Sketcher.Constraint("Coincident", 6, 2, 7, 1),
    Sketcher.Constraint("Coincident", 7, 2, 8, 1),
    Sketcher.Constraint("Coincident", 8, 2, 9, 1),
    Sketcher.Constraint("Coincident", 9, 2, 10, 1),
    Sketcher.Constraint("Coincident", 10, 2, 11, 1),
    Sketcher.Constraint("Coincident", 11, 2, 0, 1),
    Sketcher.Constraint("Coincident", 12, 2, 13, 1),
    Sketcher.Constraint("Coincident", 13, 2, 14, 1),
    Sketcher.Constraint("Coincident", 14, 2, 15, 1),
    Sketcher.Constraint("Coincident", 15, 2, 16, 1),
    Sketcher.Constraint("Coincident", 16, 2, 17, 1),
    Sketcher.Constraint("Coincident", 17, 2, 18, 1),
    Sketcher.Constraint("Coincident", 18, 2, 19, 1),
    Sketcher.Constraint("Coincident", 19, 2, 20, 1),
    Sketcher.Constraint("Coincident", 20, 2, 21, 1),
    Sketcher.Constraint("Coincident", 21, 2, 22, 1),
    Sketcher.Constraint("Coincident", 22, 2, 23, 1),
    Sketcher.Constraint("Coincident", 23, 2, 12, 1),
    Sketcher.Constraint("Coincident", 24, 2, 25, 1),
    Sketcher.Constraint("Coincident", 25, 2, 26, 1),
    Sketcher.Constraint("Coincident", 26, 2, 27, 1),
    Sketcher.Constraint("Coincident", 27, 2, 28, 1),
    Sketcher.Constraint("Coincident", 28, 2, 29, 1),
    Sketcher.Constraint("Coincident", 29, 2, 30, 1),
    Sketcher.Constraint("Coincident", 30, 2, 31, 1),
    Sketcher.Constraint("Coincident", 31, 2, 32, 1),
    Sketcher.Constraint("Coincident", 32, 2, 33, 1),
    Sketcher.Constraint("Coincident", 33, 2, 34, 1),
    Sketcher.Constraint("Coincident", 34, 2, 35, 1),
    Sketcher.Constraint("Coincident", 35, 2, 24, 1),
    Sketcher.Constraint("Coincident", 36, 2, 37, 1),
    Sketcher.Constraint("Coincident", 37, 2, 38, 1),
    Sketcher.Constraint("Coincident", 38, 2, 39, 1),
    Sketcher.Constraint("Coincident", 39, 2, 40, 1),
    Sketcher.Constraint("Coincident", 40, 2, 41, 1),
    Sketcher.Constraint("Coincident", 41, 2, 42, 1),
    Sketcher.Constraint("Coincident", 42, 2, 43, 1),
    Sketcher.Constraint("Coincident", 43, 2, 44, 1),
    Sketcher.Constraint("Coincident", 44, 2, 45, 1),
    Sketcher.Constraint("Coincident", 45, 2, 46, 1),
    Sketcher.Constraint("Coincident", 46, 2, 47, 1),
    Sketcher.Constraint("Coincident", 47, 2, 36, 1),
    Sketcher.Constraint("Coincident", 48, 2, 49, 1),
    Sketcher.Constraint("Coincident", 49, 2, 50, 1),
    Sketcher.Constraint("Coincident", 50, 2, 51, 1),
    Sketcher.Constraint("Coincident", 51, 2, 52, 1),
    Sketcher.Constraint("Coincident", 52, 2, 53, 1),
    Sketcher.Constraint("Coincident", 53, 2, 54, 1),
    Sketcher.Constraint("Coincident", 54, 2, 55, 1),
    Sketcher.Constraint("Coincident", 55, 2, 56, 1),
    Sketcher.Constraint("Coincident", 56, 2, 57, 1),
    Sketcher.Constraint("Coincident", 57, 2, 58, 1),
    Sketcher.Constraint("Coincident", 58, 2, 59, 1),
    Sketcher.Constraint("Coincident", 59, 2, 48, 1),
    Sketcher.Constraint("Coincident", 60, 2, 61, 1),
    Sketcher.Constraint("Coincident", 61, 2, 62, 1),
    Sketcher.Constraint("Coincident", 62, 2, 63, 1),
    Sketcher.Constraint("Coincident", 63, 2, 64, 1),
    Sketcher.Constraint("Coincident", 64, 2, 65, 1),
    Sketcher.Constraint("Coincident", 65, 2, 66, 1),
    Sketcher.Constraint("Coincident", 66, 2, 67, 1),
    Sketcher.Constraint("Coincident", 67, 2, 68, 1),
    Sketcher.Constraint("Coincident", 68, 2, 69, 1),
    Sketcher.Constraint("Coincident", 69, 2, 70, 1),
    Sketcher.Constraint("Coincident", 70, 2, 71, 1),
    Sketcher.Constraint("Coincident", 71, 2, 60, 1),
    Sketcher.Constraint("Coincident", 72, 2, 73, 1),
    Sketcher.Constraint("Coincident", 73, 2, 74, 1),
    Sketcher.Constraint("Coincident", 74, 2, 75, 1),
    Sketcher.Constraint("Coincident", 75, 2, 76, 1),
    Sketcher.Constraint("Coincident", 76, 2, 77, 1),
    Sketcher.Constraint("Coincident", 77, 2, 78, 1),
    Sketcher.Constraint("Coincident", 78, 2, 79, 1),
    Sketcher.Constraint("Coincident", 79, 2, 80, 1),
    Sketcher.Constraint("Coincident", 80, 2, 81, 1),
    Sketcher.Constraint("Coincident", 81, 2, 82, 1),
    Sketcher.Constraint("Coincident", 82, 2, 83, 1),
    Sketcher.Constraint("Coincident", 83, 2, 72, 1),
    Sketcher.Constraint("Horizontal", 0),
    Sketcher.Constraint("Vertical", 1),
    Sketcher.Constraint("Horizontal", 2),
    Sketcher.Constraint("Vertical", 3),
    Sketcher.Constraint("Horizontal", 4),
    Sketcher.Constraint("Vertical", 5),
    Sketcher.Constraint("Horizontal", 6),
    Sketcher.Constraint("Vertical", 7),
    Sketcher.Constraint("Horizontal", 8),
    Sketcher.Constraint("Vertical", 9),
    Sketcher.Constraint("Horizontal", 10),
    Sketcher.Constraint("Vertical", 11),
    Sketcher.Constraint("Vertical", 12),
    Sketcher.Constraint("Horizontal", 13),
    Sketcher.Constraint("Vertical", 14),
    Sketcher.Constraint("Horizontal", 15),
    Sketcher.Constraint("Vertical", 16),
    Sketcher.Constraint("Horizontal", 17),
    Sketcher.Constraint("Vertical", 18),
    Sketcher.Constraint("Horizontal", 19),
    Sketcher.Constraint("Vertical", 20),
    Sketcher.Constraint("Horizontal", 21),
    Sketcher.Constraint("Vertical", 22),
    Sketcher.Constraint("Horizontal", 23),
    Sketcher.Constraint("Vertical", 24),
    Sketcher.Constraint("Horizontal", 25),
    Sketcher.Constraint("Vertical", 26),
    Sketcher.Constraint("Horizontal", 27),
    Sketcher.Constraint("Vertical", 28),
    Sketcher.Constraint("Horizontal", 29),
    Sketcher.Constraint("Vertical", 30),
    Sketcher.Constraint("Horizontal", 31),
    Sketcher.Constraint("Vertical", 32),
    Sketcher.Constraint("Horizontal", 33),
    Sketcher.Constraint("Vertical", 34),
    Sketcher.Constraint("Horizontal", 35),
    Sketcher.Constraint("Vertical", 36),
    Sketcher.Constraint("Horizontal", 37),
    Sketcher.Constraint("Vertical", 38),
    Sketcher.Constraint("Horizontal", 39),
    Sketcher.Constraint("Vertical", 40),
    Sketcher.Constraint("Horizontal", 41),
    Sketcher.Constraint("Vertical", 42),
    Sketcher.Constraint("Horizontal", 43),
    Sketcher.Constraint("Vertical", 44),
    Sketcher.Constraint("Horizontal", 45),
    Sketcher.Constraint("Vertical", 46),
    Sketcher.Constraint("Horizontal", 47),
    Sketcher.Constraint("Vertical", 48),
    Sketcher.Constraint("Horizontal", 49),
    Sketcher.Constraint("Vertical", 50),
    Sketcher.Constraint("Horizontal", 51),
    Sketcher.Constraint("Vertical", 52),
    Sketcher.Constraint("Horizontal", 53),
    Sketcher.Constraint("Vertical", 54),
    Sketcher.Constraint("Horizontal", 55),
    Sketcher.Constraint("Vertical", 56),
    Sketcher.Constraint("Horizontal", 57),
    Sketcher.Constraint("Vertical", 58),
    Sketcher.Constraint("Horizontal", 59),
    Sketcher.Constraint("Vertical", 60),
    Sketcher.Constraint("Horizontal", 61),
    Sketcher.Constraint("Vertical", 62),
    Sketcher.Constraint("Horizontal", 63),
    Sketcher.Constraint("Vertical", 64),
    Sketcher.Constraint("Horizontal", 65),
    Sketcher.Constraint("Vertical", 66),
    Sketcher.Constraint("Horizontal", 67),
    Sketcher.Constraint("Vertical", 68),
    Sketcher.Constraint("Horizontal", 69),
    Sketcher.Constraint("Vertical", 70),
    Sketcher.Constraint("Horizontal", 71),
    Sketcher.Constraint("Vertical", 72),
    Sketcher.Constraint("Horizontal", 73),
    Sketcher.Constraint("Vertical", 74),
    Sketcher.Constraint("Horizontal", 75),
    Sketcher.Constraint("Vertical", 76),
    Sketcher.Constraint("Horizontal", 77),
    Sketcher.Constraint("Vertical", 78),
    Sketcher.Constraint("Horizontal", 79),
    Sketcher.Constraint("Vertical", 80),
    Sketcher.Constraint("Horizontal", 81),
    Sketcher.Constraint("Vertical", 82),
    Sketcher.Constraint("Horizontal", 83),
    Sketcher.Constraint("PointOnObject", 1, 2, -1),
    Sketcher.Constraint("PointOnObject", 5, 2, -1),
    Sketcher.Constraint("PointOnObject", 14, 2, -1),
    Sketcher.Constraint("PointOnObject", 18, 2, -1),
    Sketcher.Constraint("PointOnObject", 26, 2, -1),
    Sketcher.Constraint("PointOnObject", 30, 2, -1),
    Sketcher.Constraint("PointOnObject", 38, 2, -1),
    Sketcher.Constraint("PointOnObject", 42, 2, -1),
    Sketcher.Constraint("PointOnObject", 50, 2, -1),
    Sketcher.Constraint("PointOnObject", 54, 2, -1),
    Sketcher.Constraint("PointOnObject", 62, 2, -1),
    Sketcher.Constraint("PointOnObject", 66, 2, -1),
    Sketcher.Constraint("PointOnObject", 74, 2, -1),
    Sketcher.Constraint("PointOnObject", 78, 2, -1),
    Sketcher.Constraint("Horizontal", 0, 2, 7, 2),
    Sketcher.Constraint("Horizontal", 11, 2, 12, 2),
    Sketcher.Constraint("Horizontal", 4, 2, 16, 2),
    Sketcher.Constraint("Horizontal", 13, 2, 20, 2),
    Sketcher.Constraint("Horizontal", 10, 2, 22, 2),
    Sketcher.Constraint("Horizontal", 21, 2, 24, 2),
    Sketcher.Constraint("Horizontal", 17, 2, 28, 2),
    Sketcher.Constraint("Horizontal", 25, 2, 32, 2),
    Sketcher.Constraint("Horizontal", 23, 2, 34, 2),
    Sketcher.Constraint("Horizontal", 33, 2, 36, 2),
    Sketcher.Constraint("Horizontal", 29, 2, 40, 2),
    Sketcher.Constraint("Horizontal", 37, 2, 44, 2),
    Sketcher.Constraint("Horizontal", 35, 2, 46, 2),
    Sketcher.Constraint("Horizontal", 45, 2, 48, 2),
    Sketcher.Constraint("Horizontal", 41, 2, 52, 2),
    Sketcher.Constraint("Horizontal", 49, 2, 56, 2),
    Sketcher.Constraint("Horizontal", 47, 2, 58, 2),
    Sketcher.Constraint("Horizontal", 57, 2, 60, 2),
    Sketcher.Constraint("Horizontal", 53, 2, 64, 2),
    Sketcher.Constraint("Horizontal", 61, 2, 68, 2),
    Sketcher.Constraint("Horizontal", 59, 2, 70, 2),
    Sketcher.Constraint("Horizontal", 69, 2, 72, 2),
    Sketcher.Constraint("Horizontal", 65, 2, 76, 2),
    Sketcher.Constraint("Horizontal", 73, 2, 80, 2),
    Sketcher.Constraint("Horizontal", 71, 2, 82, 2),
    Sketcher.Constraint("Vertical", 5, 2, 8, 2),
    Sketcher.Constraint("Vertical", 3, 2, 10, 2),
    Sketcher.Constraint("Vertical", 12, 2, 15, 2),
    Sketcher.Constraint("Vertical", 18, 2, 21, 2),
    Sketcher.Constraint("Vertical", 24, 2, 27, 2),
    Sketcher.Constraint("Vertical", 30, 2, 33, 2),
    Sketcher.Constraint("Vertical", 36, 2, 39, 2),
    Sketcher.Constraint("Vertical", 42, 2, 45, 2),
    Sketcher.Constraint("Vertical", 48, 2, 51, 2),
    Sketcher.Constraint("Vertical", 54, 2, 57, 2),
    Sketcher.Constraint("Vertical", 60, 2, 63, 2),
    Sketcher.Constraint("Vertical", 66, 2, 69, 2),
    Sketcher.Constraint("Vertical", 72, 2, 75, 2),
    Sketcher.Constraint("Vertical", 78, 2, 81, 2),
    Sketcher.Constraint("Equal", 2, 6),
    Sketcher.Constraint("Equal", 8, 13),
    Sketcher.Constraint("Equal", 10, 17),
    Sketcher.Constraint("Equal", 15, 19),
    Sketcher.Constraint("Equal", 21, 25),
    Sketcher.Constraint("Equal", 23, 29),
    Sketcher.Constraint("Equal", 27, 31),
    Sketcher.Constraint("Equal", 33, 37),
    Sketcher.Constraint("Equal", 35, 41),
    Sketcher.Constraint("Equal", 39, 43),
    Sketcher.Constraint("Equal", 45, 49),
    Sketcher.Constraint("Equal", 47, 53),
    Sketcher.Constraint("Equal", 51, 55),
    Sketcher.Constraint("Equal", 57, 61),
    Sketcher.Constraint("Equal", 59, 65),
    Sketcher.Constraint("Equal", 63, 67),
    Sketcher.Constraint("Equal", 69, 73),
    Sketcher.Constraint("Equal", 71, 77),
    Sketcher.Constraint("Equal", 75, 79),
    Sketcher.Constraint("Equal", 83, 3),
    Sketcher.Constraint("Equal", 5, 9),
    Sketcher.Constraint("DistanceX", 0, 2, 0, 1, 2.0),
    Sketcher.Constraint("DistanceY", 1, 1, 1, 2, 20.0),
    Sketcher.Constraint("DistanceX", 4, 1, 4, 2, 2.5),
    Sketcher.Constraint("DistanceX", -1, 1, 0, 2, 18.0),
    Sketcher.Constraint("DistanceX", -1, 1, 12, 2, 40.0),
    Sketcher.Constraint("DistanceX", -1, 1, 24, 2, 60.0),
    Sketcher.Constraint("DistanceX", -1, 1, 36, 2, 80.0),
    Sketcher.Constraint("DistanceX", -1, 1, 48, 2, 100.0),
    Sketcher.Constraint("DistanceX", -1, 1, 60, 2, 120.0),
    Sketcher.Constraint("DistanceX", -1, 1, 72, 2, 140.0),
])
pad2 = doc.addObject("PartDesign::Pad", "Pad001")
body.addObject(pad2)
pad2.Profile = sketch2
pad2.Length = 1.5
pad2.Reversed = True

doc.recompute()
